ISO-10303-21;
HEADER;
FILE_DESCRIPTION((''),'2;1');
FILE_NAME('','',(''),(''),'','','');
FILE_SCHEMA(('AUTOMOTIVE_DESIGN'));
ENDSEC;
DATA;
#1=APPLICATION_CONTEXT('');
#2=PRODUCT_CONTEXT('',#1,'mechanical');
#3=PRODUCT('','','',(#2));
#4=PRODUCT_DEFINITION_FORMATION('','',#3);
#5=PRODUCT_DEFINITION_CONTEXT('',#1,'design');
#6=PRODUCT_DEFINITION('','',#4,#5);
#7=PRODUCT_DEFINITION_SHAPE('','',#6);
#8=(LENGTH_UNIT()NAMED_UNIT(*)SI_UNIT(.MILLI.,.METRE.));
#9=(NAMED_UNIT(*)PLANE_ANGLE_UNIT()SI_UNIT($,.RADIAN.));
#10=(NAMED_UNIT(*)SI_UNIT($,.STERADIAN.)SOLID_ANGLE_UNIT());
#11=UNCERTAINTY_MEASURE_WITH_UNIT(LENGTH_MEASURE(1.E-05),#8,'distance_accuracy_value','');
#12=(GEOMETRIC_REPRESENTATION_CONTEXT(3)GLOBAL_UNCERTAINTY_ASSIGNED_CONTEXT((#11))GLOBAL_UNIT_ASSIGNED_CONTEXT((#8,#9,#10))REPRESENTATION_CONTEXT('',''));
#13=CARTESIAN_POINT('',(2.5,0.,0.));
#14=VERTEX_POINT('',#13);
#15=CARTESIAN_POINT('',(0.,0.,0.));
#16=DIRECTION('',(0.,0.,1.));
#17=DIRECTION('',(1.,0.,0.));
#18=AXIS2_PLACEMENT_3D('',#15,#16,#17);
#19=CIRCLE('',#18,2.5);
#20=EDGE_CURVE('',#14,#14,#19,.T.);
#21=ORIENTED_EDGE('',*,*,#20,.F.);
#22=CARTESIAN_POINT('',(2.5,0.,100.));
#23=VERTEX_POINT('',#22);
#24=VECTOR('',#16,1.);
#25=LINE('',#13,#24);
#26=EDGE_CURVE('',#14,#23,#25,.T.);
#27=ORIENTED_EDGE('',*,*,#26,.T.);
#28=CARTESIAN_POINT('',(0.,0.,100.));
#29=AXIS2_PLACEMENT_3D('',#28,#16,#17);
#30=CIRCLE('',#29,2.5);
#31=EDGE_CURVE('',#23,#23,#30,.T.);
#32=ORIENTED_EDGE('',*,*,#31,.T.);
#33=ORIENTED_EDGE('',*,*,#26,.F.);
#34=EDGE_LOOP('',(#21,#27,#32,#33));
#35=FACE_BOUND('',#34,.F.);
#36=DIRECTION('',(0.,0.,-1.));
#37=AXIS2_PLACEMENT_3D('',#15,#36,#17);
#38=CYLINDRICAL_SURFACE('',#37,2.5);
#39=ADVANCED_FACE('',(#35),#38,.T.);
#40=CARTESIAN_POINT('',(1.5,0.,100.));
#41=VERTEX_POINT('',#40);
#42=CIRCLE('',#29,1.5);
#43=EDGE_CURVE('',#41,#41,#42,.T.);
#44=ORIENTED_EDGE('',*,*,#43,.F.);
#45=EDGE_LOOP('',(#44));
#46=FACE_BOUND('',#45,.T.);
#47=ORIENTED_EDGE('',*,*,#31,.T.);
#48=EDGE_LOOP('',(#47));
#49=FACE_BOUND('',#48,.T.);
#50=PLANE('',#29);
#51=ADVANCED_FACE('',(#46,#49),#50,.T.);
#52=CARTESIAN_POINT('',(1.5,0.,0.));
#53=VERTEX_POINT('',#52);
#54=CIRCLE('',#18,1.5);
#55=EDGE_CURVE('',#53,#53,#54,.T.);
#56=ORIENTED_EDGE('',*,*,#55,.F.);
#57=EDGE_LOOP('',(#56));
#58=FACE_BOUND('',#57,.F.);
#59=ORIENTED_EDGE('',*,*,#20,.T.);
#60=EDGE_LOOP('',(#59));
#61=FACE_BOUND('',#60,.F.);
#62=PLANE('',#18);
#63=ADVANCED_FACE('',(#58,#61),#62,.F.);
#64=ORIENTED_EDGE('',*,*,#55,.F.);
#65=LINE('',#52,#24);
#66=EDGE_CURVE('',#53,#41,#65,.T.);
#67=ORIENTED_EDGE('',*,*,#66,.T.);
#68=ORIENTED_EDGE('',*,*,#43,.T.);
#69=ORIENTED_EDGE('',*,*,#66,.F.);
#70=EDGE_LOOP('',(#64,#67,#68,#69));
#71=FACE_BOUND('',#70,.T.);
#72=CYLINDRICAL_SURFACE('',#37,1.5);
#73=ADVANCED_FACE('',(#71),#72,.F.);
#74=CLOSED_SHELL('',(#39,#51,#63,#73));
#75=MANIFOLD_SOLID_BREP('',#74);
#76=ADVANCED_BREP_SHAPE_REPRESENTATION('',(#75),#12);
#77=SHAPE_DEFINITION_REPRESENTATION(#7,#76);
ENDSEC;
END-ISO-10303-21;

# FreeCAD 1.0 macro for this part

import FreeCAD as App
import Part
import Sketcher

doc = App.newDocument("Part")
params = doc.addObject("Spreadsheet::Sheet", "Params")
for row, (alias, value) in enumerate([
    ("sketch1_diameter", "5 mm"),
    ("sketch1_diameter2", "3 mm"),
    ("pad1_length", "100 mm"),
], start=1):
    params.set(f"A{row}", alias)
    params.set(f"B{row}", "=" + value)
    params.setAlias(f"B{row}", alias)

body = doc.addObject("PartDesign::Body", "Body")

sketch1 = body.newObject("Sketcher::SketchObject", "Sketch")
sketch1.AttachmentSupport = (doc.getObject("XY_Plane"), [""])
sketch1.MapMode = "FlatFace"
sketch1.addGeometry([
    Part.Circle(App.Vector(0, 0, 0), App.Vector(0, 0, 1), 2.5),
    Part.Circle(App.Vector(0, 0, 0), App.Vector(0, 0, 1), 1.5),
], False)
sketch1.addConstraint([
    Sketcher.Constraint("Coincident", 0, 3, -1, 1),
    Sketcher.Constraint("Coincident", 1, 3, -1, 1),
    Sketcher.Constraint("Diameter", 0, 5.0),
    Sketcher.Constraint("Diameter", 1, 3.0),
])
sketch1.setExpression("Constraints[2]", "Params.sketch1_diameter")
sketch1.setExpression("Constraints[3]", "Params.sketch1_diameter2")
pad1 = body.newObject("PartDesign::Pad", "Pad")
pad1.Profile = sketch1
pad1.setExpression("Length", "Params.pad1_length")

doc.recompute()
